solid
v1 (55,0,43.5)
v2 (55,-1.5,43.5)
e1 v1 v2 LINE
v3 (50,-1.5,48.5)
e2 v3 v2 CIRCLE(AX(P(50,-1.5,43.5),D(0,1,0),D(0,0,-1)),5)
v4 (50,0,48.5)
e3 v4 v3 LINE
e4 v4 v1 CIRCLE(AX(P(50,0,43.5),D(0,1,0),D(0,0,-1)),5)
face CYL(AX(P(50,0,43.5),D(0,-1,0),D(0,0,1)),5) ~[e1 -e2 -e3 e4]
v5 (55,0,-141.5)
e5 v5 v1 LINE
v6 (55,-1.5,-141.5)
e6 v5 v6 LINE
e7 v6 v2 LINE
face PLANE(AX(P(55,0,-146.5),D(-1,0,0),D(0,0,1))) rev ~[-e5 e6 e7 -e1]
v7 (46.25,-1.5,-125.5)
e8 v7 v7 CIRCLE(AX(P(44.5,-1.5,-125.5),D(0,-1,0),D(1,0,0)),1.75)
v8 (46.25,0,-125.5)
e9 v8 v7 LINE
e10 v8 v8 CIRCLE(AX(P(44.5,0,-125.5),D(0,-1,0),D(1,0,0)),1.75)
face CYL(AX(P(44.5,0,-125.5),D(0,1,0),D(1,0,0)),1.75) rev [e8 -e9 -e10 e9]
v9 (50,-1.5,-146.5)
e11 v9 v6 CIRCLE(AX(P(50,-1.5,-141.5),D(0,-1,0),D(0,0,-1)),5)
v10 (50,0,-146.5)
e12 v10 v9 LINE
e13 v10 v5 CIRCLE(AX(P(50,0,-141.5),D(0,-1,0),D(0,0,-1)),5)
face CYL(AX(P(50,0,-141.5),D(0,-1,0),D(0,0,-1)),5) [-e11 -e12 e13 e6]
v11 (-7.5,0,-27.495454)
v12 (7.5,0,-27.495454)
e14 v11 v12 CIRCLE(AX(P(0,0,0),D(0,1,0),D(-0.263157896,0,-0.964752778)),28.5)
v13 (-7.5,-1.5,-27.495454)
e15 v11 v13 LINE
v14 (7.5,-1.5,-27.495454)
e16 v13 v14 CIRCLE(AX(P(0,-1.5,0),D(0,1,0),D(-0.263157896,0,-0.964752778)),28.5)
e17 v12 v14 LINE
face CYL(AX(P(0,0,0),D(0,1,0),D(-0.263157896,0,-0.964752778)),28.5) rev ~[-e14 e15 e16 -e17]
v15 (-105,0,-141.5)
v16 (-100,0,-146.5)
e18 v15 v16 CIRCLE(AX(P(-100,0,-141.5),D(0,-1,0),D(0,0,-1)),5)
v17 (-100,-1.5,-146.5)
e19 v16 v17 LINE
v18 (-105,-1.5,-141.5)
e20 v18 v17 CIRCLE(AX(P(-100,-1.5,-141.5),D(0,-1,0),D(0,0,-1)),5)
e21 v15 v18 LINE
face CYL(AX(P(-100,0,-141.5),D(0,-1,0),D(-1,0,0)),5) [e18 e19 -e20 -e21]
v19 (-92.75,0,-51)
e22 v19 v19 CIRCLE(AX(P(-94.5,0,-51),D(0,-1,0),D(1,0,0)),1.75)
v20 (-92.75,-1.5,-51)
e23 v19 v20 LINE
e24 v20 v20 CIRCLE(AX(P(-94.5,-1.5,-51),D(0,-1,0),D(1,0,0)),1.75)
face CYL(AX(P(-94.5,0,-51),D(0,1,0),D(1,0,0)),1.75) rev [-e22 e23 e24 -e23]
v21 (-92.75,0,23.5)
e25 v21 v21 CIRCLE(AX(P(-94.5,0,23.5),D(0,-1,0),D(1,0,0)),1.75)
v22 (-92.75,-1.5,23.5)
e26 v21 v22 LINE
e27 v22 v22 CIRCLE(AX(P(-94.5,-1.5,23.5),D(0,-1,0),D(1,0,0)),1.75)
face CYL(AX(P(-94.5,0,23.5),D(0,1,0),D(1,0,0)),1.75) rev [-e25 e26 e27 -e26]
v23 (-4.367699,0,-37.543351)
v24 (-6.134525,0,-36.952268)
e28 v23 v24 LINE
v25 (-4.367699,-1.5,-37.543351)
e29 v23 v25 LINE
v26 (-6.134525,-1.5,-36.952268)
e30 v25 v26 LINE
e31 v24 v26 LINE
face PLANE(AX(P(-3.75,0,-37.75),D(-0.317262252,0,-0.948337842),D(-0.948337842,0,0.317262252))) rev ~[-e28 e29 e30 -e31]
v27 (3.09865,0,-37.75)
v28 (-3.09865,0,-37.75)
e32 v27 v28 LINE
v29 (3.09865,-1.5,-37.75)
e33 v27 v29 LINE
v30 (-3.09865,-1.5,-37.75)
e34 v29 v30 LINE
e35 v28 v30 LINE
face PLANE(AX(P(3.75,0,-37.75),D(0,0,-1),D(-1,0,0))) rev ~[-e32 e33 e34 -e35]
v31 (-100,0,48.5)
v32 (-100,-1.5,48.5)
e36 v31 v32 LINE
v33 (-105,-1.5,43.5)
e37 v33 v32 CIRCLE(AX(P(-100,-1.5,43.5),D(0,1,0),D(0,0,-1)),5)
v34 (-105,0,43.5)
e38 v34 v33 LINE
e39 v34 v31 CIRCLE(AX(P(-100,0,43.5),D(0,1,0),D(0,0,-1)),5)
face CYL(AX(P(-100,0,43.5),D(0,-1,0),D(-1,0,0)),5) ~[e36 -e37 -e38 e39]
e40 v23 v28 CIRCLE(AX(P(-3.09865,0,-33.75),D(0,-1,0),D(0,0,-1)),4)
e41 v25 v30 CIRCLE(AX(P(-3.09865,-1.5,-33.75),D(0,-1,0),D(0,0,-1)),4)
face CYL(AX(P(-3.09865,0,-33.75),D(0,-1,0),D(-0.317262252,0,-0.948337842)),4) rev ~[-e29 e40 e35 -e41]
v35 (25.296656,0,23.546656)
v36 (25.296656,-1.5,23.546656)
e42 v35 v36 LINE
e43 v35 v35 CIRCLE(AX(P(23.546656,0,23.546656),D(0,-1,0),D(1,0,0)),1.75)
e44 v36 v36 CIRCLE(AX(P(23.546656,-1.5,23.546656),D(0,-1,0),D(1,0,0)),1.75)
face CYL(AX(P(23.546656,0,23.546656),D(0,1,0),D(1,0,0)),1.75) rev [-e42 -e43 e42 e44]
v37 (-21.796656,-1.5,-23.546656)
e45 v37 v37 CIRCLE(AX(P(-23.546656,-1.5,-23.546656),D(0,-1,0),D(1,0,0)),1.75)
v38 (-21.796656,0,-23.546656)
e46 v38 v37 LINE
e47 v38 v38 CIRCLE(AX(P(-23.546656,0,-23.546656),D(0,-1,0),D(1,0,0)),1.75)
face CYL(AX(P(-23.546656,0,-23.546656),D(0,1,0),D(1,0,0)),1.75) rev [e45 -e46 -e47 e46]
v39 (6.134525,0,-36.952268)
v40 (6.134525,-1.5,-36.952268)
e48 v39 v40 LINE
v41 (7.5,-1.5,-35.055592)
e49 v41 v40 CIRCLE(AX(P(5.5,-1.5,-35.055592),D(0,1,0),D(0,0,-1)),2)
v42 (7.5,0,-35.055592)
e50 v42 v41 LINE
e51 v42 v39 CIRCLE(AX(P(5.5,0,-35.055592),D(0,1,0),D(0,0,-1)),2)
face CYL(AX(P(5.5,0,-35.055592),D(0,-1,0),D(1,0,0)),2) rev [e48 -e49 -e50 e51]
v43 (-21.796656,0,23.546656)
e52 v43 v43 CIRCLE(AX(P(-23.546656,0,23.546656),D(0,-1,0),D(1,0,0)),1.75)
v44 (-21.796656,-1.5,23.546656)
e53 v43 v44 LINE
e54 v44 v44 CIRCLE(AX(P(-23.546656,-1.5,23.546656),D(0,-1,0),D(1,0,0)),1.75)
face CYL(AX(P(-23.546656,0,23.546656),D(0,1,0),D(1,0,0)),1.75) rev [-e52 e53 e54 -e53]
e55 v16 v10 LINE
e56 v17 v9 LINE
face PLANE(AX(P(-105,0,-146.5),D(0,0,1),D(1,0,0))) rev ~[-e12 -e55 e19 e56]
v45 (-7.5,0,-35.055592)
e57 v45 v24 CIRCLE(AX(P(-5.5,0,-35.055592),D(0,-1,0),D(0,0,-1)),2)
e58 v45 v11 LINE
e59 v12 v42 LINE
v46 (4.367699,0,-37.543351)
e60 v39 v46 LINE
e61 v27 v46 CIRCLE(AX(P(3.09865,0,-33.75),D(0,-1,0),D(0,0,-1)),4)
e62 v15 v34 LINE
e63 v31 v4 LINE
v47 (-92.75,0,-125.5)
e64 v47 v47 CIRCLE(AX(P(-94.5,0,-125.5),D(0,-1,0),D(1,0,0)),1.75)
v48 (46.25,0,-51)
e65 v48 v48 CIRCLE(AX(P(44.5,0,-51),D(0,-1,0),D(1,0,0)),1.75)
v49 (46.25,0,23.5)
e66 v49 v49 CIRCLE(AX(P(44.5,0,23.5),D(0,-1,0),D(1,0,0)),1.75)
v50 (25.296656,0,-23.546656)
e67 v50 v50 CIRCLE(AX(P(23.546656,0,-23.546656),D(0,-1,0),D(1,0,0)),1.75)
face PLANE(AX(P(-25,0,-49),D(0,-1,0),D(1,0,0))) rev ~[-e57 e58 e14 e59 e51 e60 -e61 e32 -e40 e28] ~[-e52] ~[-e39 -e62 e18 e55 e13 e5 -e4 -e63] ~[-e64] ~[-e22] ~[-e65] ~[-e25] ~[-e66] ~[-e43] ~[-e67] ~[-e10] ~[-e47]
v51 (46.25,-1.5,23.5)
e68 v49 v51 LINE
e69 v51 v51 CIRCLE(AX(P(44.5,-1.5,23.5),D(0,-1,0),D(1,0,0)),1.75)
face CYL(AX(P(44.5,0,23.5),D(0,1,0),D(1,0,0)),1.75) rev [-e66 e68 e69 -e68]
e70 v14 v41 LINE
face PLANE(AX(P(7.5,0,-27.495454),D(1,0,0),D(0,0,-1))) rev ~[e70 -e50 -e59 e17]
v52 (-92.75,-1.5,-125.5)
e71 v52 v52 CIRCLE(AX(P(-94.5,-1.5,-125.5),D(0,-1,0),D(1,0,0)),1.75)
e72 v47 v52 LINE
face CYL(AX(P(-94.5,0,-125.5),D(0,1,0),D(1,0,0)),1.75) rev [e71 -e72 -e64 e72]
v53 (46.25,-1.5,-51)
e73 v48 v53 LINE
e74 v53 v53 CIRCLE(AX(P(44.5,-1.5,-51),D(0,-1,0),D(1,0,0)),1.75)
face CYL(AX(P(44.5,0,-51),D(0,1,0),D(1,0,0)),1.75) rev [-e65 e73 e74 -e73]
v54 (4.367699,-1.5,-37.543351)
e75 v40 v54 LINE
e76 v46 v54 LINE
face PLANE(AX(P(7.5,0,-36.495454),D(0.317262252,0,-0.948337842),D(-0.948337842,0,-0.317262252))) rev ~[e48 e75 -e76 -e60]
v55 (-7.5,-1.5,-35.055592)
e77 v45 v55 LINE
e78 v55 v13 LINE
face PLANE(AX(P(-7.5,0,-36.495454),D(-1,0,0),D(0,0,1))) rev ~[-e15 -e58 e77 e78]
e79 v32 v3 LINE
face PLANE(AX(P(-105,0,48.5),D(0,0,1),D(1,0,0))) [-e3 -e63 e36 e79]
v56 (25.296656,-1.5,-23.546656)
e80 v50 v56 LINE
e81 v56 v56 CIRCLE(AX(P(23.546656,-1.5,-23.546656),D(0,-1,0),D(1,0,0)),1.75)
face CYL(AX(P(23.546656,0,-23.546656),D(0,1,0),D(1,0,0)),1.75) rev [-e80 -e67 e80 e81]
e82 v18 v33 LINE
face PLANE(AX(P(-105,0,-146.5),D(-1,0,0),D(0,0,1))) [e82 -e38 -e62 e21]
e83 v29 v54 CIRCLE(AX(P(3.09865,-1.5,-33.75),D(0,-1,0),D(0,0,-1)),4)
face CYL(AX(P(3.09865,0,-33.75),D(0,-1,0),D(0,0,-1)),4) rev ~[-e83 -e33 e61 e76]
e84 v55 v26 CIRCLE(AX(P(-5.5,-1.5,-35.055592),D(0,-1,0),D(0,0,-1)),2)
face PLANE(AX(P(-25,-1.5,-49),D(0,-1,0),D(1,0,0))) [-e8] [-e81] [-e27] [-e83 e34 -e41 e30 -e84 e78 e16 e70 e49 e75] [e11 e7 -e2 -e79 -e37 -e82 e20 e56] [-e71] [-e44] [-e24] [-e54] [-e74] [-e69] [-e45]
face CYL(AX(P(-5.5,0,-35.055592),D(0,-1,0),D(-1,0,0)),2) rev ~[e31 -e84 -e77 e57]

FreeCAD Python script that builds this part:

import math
import FreeCAD as App
import Part
import Sketcher
from FreeCAD import Vector


def edges_at(feature, points):
    """Names of the edges that pass closest to the given points."""
    edges = feature.Shape.Edges
    near = lambda p: min(range(len(edges)), key=lambda i: edges[i].distToShape(Part.Vertex(*p))[0])
    return sorted({f"Edge{near(p) + 1}" for p in points})


def add_polygon(sketch, points):
    """Adds a closed chain of lines whose ends are joined by coincident constraints."""
    first, n = sketch.GeometryCount, len(points)
    for a, b in zip(points, points[1:] + points[:1]):
        sketch.addGeometry(Part.LineSegment(App.Vector(*a, 0), App.Vector(*b, 0)), False)
    for i in range(n):
        sketch.addConstraint(Sketcher.Constraint("Coincident", first + i, 2, first + (i + 1) % n, 1))

doc = App.newDocument("Part")
body = doc.addObject("PartDesign::Body", "Body")

# Sketch on XZ plane
sketch1 = body.newObject("Sketcher::SketchObject", "Sketch")
sketch1.AttachmentSupport = (doc.getObject("XZ_Plane"), [""])
sketch1.MapMode = "FlatFace"
add_polygon(sketch1, [(-105, 48.5), (-105, -146.5), (55, -146.5), (55, 48.5)])  # lines 0-3
sketch1.addGeometry(Part.Circle(Vector(-94.5, -125.5, 0), Vector(0, 0, 1), 1.75), False)  # 4
sketch1.addGeometry(Part.Circle(Vector(-94.5, -51, 0), Vector(0, 0, 1), 1.75), False)  # 5
sketch1.addGeometry(Part.Circle(Vector(44.5, -125.5, 0), Vector(0, 0, 1), 1.75), False)  # 6
sketch1.addGeometry(Part.Circle(Vector(44.5, -51, 0), Vector(0, 0, 1), 1.75), False)  # 7
sketch1.addGeometry(Part.Circle(Vector(-94.5, 23.5, 0), Vector(0, 0, 1), 1.75), False)  # 8
sketch1.addGeometry(Part.Circle(Vector(-23.546656, -23.546656, 0), Vector(0, 0, 1), 1.75), False)  # 9
sketch1.addGeometry(Part.Circle(Vector(23.546656, -23.546656, 0), Vector(0, 0, 1), 1.75), False)  # 10
sketch1.addGeometry(Part.LineSegment(Vector(-7.5, -36.495454, 0), Vector(-7.5, -27.495454, 0)), False)  # 11
sketch1.addGeometry(Part.ArcOfCircle(Part.Circle(Vector(0, 0, 0), Vector(0, 0, 1), 28.5), math.radians(-74.742477), math.radians(254.742477)), False)  # 12
sketch1.addGeometry(Part.LineSegment(Vector(7.5, -27.495454, 0), Vector(7.5, -36.495454, 0)), False)  # 13
sketch1.addGeometry(Part.LineSegment(Vector(7.5, -36.495454, 0), Vector(3.75, -37.75, 0)), False)  # 14
sketch1.addGeometry(Part.LineSegment(Vector(3.75, -37.75, 0), Vector(-3.75, -37.75, 0)), False)  # 15
sketch1.addGeometry(Part.LineSegment(Vector(-3.75, -37.75, 0), Vector(-7.5, -36.495454, 0)), False)  # 16
sketch1.addGeometry(Part.Circle(Vector(-23.546656, 23.546656, 0), Vector(0, 0, 1), 1.75), False)  # 17
sketch1.addGeometry(Part.Circle(Vector(23.546656, 23.546656, 0), Vector(0, 0, 1), 1.75), False)  # 18
sketch1.addGeometry(Part.Circle(Vector(44.5, 23.5, 0), Vector(0, 0, 1), 1.75), False)  # 19
sketch1.addConstraint([
    Sketcher.Constraint("Coincident", 11, 2, 12, 2),
    Sketcher.Constraint("Coincident", 12, 1, 13, 1),
    Sketcher.Constraint("Coincident", 13, 2, 14, 1),
    Sketcher.Constraint("Coincident", 14, 2, 15, 1),
    Sketcher.Constraint("Coincident", 15, 2, 16, 1),
    Sketcher.Constraint("Coincident", 16, 2, 11, 1),
    Sketcher.Constraint("Vertical", 0),
    Sketcher.Constraint("Horizontal", 1),
    Sketcher.Constraint("Vertical", 2),
    Sketcher.Constraint("Horizontal", 3),
    Sketcher.Constraint("Vertical", 11),
    Sketcher.Constraint("Vertical", 13),
    Sketcher.Constraint("Horizontal", 15),
    Sketcher.Constraint("Coincident", 12, 3, -1, 1),
    Sketcher.Constraint("Equal", 4, 5),
    Sketcher.Constraint("Equal", 5, 6),
    Sketcher.Constraint("Equal", 6, 7),
    Sketcher.Constraint("Equal", 7, 8),
    Sketcher.Constraint("Equal", 8, 9),
    Sketcher.Constraint("Equal", 9, 10),
    Sketcher.Constraint("Equal", 10, 17),
    Sketcher.Constraint("Equal", 17, 18),
    Sketcher.Constraint("Equal", 18, 19),
    Sketcher.Constraint("Symmetric", 10, 3, 17, 3, -1, 1),
    Sketcher.Constraint("Symmetric", 9, 3, 18, 3, -1, 1),
    Sketcher.Constraint("Symmetric", 9, 3, 10, 3, -2),
    Sketcher.Constraint("Symmetric", 13, 2, 16, 2, -2),
    Sketcher.Constraint("Horizontal", 4, 3, 6, 3),
    Sketcher.Constraint("Horizontal", 5, 3, 7, 3),
    Sketcher.Constraint("Horizontal", 8, 3, 19, 3),
    Sketcher.Constraint("Vertical", 4, 3, 5, 3),
    Sketcher.Constraint("Vertical", 6, 3, 7, 3),
    Sketcher.Constraint("Vertical", 5, 3, 8, 3),
    Sketcher.Constraint("Vertical", 7, 3, 19, 3),
    Sketcher.Constraint("Equal", 14, 16),
    Sketcher.Constraint("Diameter", 4, 3.5),
    Sketcher.Constraint("Radius", 12, 28.5),
    Sketcher.Constraint("DistanceX", 1, 1, 1, 2, 160.0),
    Sketcher.Constraint("DistanceY", 0, 2, 0, 1, 195.0),
    Sketcher.Constraint("DistanceY", 11, 1, 11, 2, 9.0),
    Sketcher.Constraint("DistanceX", 15, 2, 15, 1, 7.5),
    Sketcher.Constraint("DistanceY", 5, 3, -1, 1, 51.0),
    Sketcher.Constraint("DistanceX", 0, 2, -1, 1, 105.0),
    Sketcher.Constraint("DistanceX", 4, 3, 6, 3, 139.0),
    Sketcher.Constraint("DistanceY", 4, 3, 8, 3, 149.0),
    Sketcher.Constraint("DistanceY", 0, 2, 4, 3, 21.0),
    Sketcher.Constraint("DistanceX", 11, 2, 7, 3, 52.0),
    Sketcher.Constraint("DistanceX", 11, 2, 12, 1, 15.0),
    Sketcher.Constraint("DistanceY", 4, 3, -1, 1, 125.5),
    Sketcher.Constraint("DistanceY", 14, 2, -1, 1, 37.75),
    Sketcher.Constraint("DistanceY", 11, 2, 9, 3, 3.948798),
    Sketcher.Constraint("DistanceX", 9, 3, 10, 3, 47.093312),
])
pad1 = body.newObject("PartDesign::Pad", "Pad")
pad1.Profile = sketch1
pad1.Length = 1.5
doc.recompute()

fillet = body.newObject("PartDesign::Fillet", "Fillet")
fillet.Base = (pad1, edges_at(pad1, [(7.5, -0.75, -36.495), (-7.5, -0.75, -36.495)]))
fillet.Radius = 2
doc.recompute()

fillet2 = body.newObject("PartDesign::Fillet", "Fillet001")
fillet2.Base = (fillet, edges_at(fillet, [(3.75, -0.75, -37.75), (-3.75, -0.75, -37.75)]))
fillet2.Radius = 4
doc.recompute()

fillet3 = body.newObject("PartDesign::Fillet", "Fillet002")
fillet3.Base = (fillet2, edges_at(fillet2, [
    (55, -0.75, 48.5),
    (-105, -0.75, 48.5),
    (-105, -0.75, -146.5),
    (55, -0.75, -146.5),
]))
fillet3.Radius = 5

doc.recompute()
